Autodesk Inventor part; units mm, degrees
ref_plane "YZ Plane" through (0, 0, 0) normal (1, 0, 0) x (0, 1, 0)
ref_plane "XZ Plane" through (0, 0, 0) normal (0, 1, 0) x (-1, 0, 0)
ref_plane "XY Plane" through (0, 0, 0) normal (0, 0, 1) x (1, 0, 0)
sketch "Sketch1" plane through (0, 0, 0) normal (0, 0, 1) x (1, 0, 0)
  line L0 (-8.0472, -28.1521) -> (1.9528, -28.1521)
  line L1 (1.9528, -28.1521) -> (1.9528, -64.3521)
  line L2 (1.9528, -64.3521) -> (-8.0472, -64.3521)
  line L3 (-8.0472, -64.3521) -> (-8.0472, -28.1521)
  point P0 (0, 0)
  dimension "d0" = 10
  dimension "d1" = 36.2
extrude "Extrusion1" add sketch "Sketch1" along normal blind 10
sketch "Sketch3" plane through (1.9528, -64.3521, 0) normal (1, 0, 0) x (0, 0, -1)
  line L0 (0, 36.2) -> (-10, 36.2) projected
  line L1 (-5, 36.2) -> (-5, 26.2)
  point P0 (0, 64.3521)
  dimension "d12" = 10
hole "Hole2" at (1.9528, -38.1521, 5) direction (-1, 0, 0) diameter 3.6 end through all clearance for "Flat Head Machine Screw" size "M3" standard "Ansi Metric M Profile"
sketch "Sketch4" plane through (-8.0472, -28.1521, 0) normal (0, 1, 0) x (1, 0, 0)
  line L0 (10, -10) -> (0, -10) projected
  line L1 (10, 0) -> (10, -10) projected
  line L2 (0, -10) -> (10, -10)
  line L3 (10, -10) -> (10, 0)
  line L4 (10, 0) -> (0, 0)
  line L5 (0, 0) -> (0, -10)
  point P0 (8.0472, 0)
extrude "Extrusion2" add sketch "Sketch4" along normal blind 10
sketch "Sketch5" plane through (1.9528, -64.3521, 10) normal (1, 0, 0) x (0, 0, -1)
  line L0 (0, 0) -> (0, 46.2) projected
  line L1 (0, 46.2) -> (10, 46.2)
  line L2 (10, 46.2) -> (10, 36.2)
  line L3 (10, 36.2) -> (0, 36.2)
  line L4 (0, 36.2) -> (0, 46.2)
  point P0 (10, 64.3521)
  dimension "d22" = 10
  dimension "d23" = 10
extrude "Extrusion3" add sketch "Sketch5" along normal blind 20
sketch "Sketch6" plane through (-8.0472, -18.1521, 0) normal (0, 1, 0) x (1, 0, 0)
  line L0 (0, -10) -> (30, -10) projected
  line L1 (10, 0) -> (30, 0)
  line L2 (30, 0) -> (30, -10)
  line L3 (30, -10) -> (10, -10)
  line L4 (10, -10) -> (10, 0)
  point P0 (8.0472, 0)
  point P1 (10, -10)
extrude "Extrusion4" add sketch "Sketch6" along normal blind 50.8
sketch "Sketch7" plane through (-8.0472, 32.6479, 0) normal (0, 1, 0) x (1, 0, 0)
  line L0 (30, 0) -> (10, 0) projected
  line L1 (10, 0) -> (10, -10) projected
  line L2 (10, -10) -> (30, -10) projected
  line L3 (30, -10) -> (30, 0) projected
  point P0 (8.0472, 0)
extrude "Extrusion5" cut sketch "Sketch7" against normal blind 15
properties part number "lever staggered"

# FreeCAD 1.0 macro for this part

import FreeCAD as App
import Part
import Sketcher
from FreeCAD import Vector
Q = App.Units.Quantity

doc = App.newDocument("Part")
body = doc.addObject("PartDesign::Body", "Body")

# Sketch on XY plane
sketch1 = body.newObject("Sketcher::SketchObject", "Sketch")
sketch1.AttachmentSupport = (doc.getObject("XY_Plane"), [""])
sketch1.MapMode = "FlatFace"
sketch1.addGeometry(Part.LineSegment(Vector(2, -28, 0), Vector(-8, -28, 0)), False)
sketch1.addGeometry(Part.LineSegment(Vector(-8, -28, 0), Vector(-8, -64, 0)), False)
sketch1.addGeometry(Part.LineSegment(Vector(-8, -64, 0), Vector(2, -64, 0)), False)
sketch1.addGeometry(Part.LineSegment(Vector(2, -64, 0), Vector(2, -28, 0)), False)
sketch1.addConstraint(Sketcher.Constraint("Coincident", 0, 2, 1, 1))
sketch1.addConstraint(Sketcher.Constraint("Coincident", 1, 2, 2, 1))
sketch1.addConstraint(Sketcher.Constraint("Coincident", 2, 2, 3, 1))
sketch1.addConstraint(Sketcher.Constraint("Coincident", 3, 2, 0, 1))
sketch1.addConstraint(Sketcher.Constraint("Horizontal", 0))
sketch1.addConstraint(Sketcher.Constraint("Vertical", 1))
sketch1.addConstraint(Sketcher.Constraint("Horizontal", 2))
sketch1.addConstraint(Sketcher.Constraint("Vertical", 3))
sketch1.addConstraint(Sketcher.Constraint("DistanceX", 0, 2, 0, 1, Q("10 mm")))
sketch1.addConstraint(Sketcher.Constraint("DistanceY", 1, 2, 1, 1, Q("36.2 mm")))
sketch1.addConstraint(Sketcher.Constraint("DistanceY", 0, 2, -1, 1, Q("28.152 mm")))
sketch1.addConstraint(Sketcher.Constraint("DistanceX", 0, 2, -1, 1, Q("8.0472 mm")))
pad1 = body.newObject("PartDesign::Pad", "Pad")
pad1.Profile = sketch1
pad1.Length = 10

# Sketch on YZ plane
sketch2 = body.newObject("Sketcher::SketchObject", "Sketch001")
sketch2.AttachmentSupport = (doc.getObject("YZ_Plane"), [""])
sketch2.MapMode = "FlatFace"
sketch2.AttachmentOffset = App.Placement(Vector(0, 0, 1.9528), App.Rotation())
sketch2.addGeometry(Part.Circle(Vector(-38.2, 5, 0), Vector(0, 0, 1), 1.8), False)
sketch2.addConstraint(Sketcher.Constraint("Diameter", 0, Q("3.6 mm")))
sketch2.addConstraint(Sketcher.Constraint("DistanceY", -1, 1, 0, 3, Q("5 mm")))
sketch2.addConstraint(Sketcher.Constraint("DistanceX", 0, 3, -1, 1, Q("38.152 mm")))
doc.recompute()
hole = body.newObject("PartDesign::Hole", "Hole")
hole.Profile = sketch2
hole.ThreadType = "None"
hole.Diameter = 3.6
hole.DepthType = "ThroughAll"

# Sketch on XZ plane
sketch3 = body.newObject("Sketcher::SketchObject", "Sketch002")
sketch3.AttachmentSupport = (doc.getObject("XZ_Plane"), [""])
sketch3.MapMode = "FlatFace"
sketch3.AttachmentOffset = App.Placement(Vector(0, 0, 28.1521), App.Rotation())
sketch3.addGeometry(Part.LineSegment(Vector(-8, 10, 0), Vector(2, 10, 0)), False)
sketch3.addGeometry(Part.LineSegment(Vector(2, 10, 0), Vector(2, 0, 0)), False)
sketch3.addGeometry(Part.LineSegment(Vector(2, 0, 0), Vector(-8, 0, 0)), False)
sketch3.addGeometry(Part.LineSegment(Vector(-8, 0, 0), Vector(-8, 10, 0)), False)
sketch3.addConstraint(Sketcher.Constraint("Coincident", 0, 2, 1, 1))
sketch3.addConstraint(Sketcher.Constraint("Coincident", 1, 2, 2, 1))
sketch3.addConstraint(Sketcher.Constraint("Coincident", 2, 2, 3, 1))
sketch3.addConstraint(Sketcher.Constraint("Coincident", 3, 2, 0, 1))
sketch3.addConstraint(Sketcher.Constraint("Horizontal", 0))
sketch3.addConstraint(Sketcher.Constraint("Vertical", 1))
sketch3.addConstraint(Sketcher.Constraint("Horizontal", 2))
sketch3.addConstraint(Sketcher.Constraint("Vertical", 3))
sketch3.addConstraint(Sketcher.Constraint("PointOnObject", 1, 2, -1))
sketch3.addConstraint(Sketcher.Constraint("Equal", 2, 1))
sketch3.addConstraint(Sketcher.Constraint("DistanceX", 0, 1, 0, 2, Q("10 mm")))
sketch3.addConstraint(Sketcher.Constraint("DistanceX", -1, 1, 0, 2, Q("1.9528 mm")))
pad2 = body.newObject("PartDesign::Pad", "Pad001")
pad2.Profile = sketch3
pad2.Length = 10
pad2.Reversed = True

# Sketch on YZ plane
sketch4 = body.newObject("Sketcher::SketchObject", "Sketch003")
sketch4.AttachmentSupport = (doc.getObject("YZ_Plane"), [""])
sketch4.MapMode = "FlatFace"
sketch4.AttachmentOffset = App.Placement(Vector(0, 0, 1.9528), App.Rotation())
sketch4.addGeometry(Part.LineSegment(Vector(-18, 10, 0), Vector(-28, 10, 0)), False)
sketch4.addGeometry(Part.LineSegment(Vector(-28, 10, 0), Vector(-28, 0, 0)), False)
sketch4.addGeometry(Part.LineSegment(Vector(-28, 0, 0), Vector(-18, 0, 0)), False)
sketch4.addGeometry(Part.LineSegment(Vector(-18, 0, 0), Vector(-18, 10, 0)), False)
sketch4.addConstraint(Sketcher.Constraint("Coincident", 0, 2, 1, 1))
sketch4.addConstraint(Sketcher.Constraint("Coincident", 1, 2, 2, 1))
sketch4.addConstraint(Sketcher.Constraint("Coincident", 2, 2, 3, 1))
sketch4.addConstraint(Sketcher.Constraint("Coincident", 3, 2, 0, 1))
sketch4.addConstraint(Sketcher.Constraint("Horizontal", 0))
sketch4.addConstraint(Sketcher.Constraint("Vertical", 1))
sketch4.addConstraint(Sketcher.Constraint("Horizontal", 2))
sketch4.addConstraint(Sketcher.Constraint("Vertical", 3))
sketch4.addConstraint(Sketcher.Constraint("PointOnObject", 1, 2, -1))
sketch4.addConstraint(Sketcher.Constraint("Equal", 2, 1))
sketch4.addConstraint(Sketcher.Constraint("DistanceX", 0, 2, 0, 1, Q("10 mm")))
sketch4.addConstraint(Sketcher.Constraint("DistanceX", 0, 2, -1, 1, Q("28.152 mm")))
pad3 = body.newObject("PartDesign::Pad", "Pad002")
pad3.Profile = sketch4
pad3.Length = 20

# Sketch on XZ plane
sketch5 = body.newObject("Sketcher::SketchObject", "Sketch004")
sketch5.AttachmentSupport = (doc.getObject("XZ_Plane"), [""])
sketch5.MapMode = "FlatFace"
sketch5.AttachmentOffset = App.Placement(Vector(0, 0, 18.1521), App.Rotation())
sketch5.addGeometry(Part.LineSegment(Vector(2, 0, 0), Vector(2, 10, 0)), False)
sketch5.addGeometry(Part.LineSegment(Vector(2, 10, 0), Vector(22, 10, 0)), False)
sketch5.addGeometry(Part.LineSegment(Vector(22, 10, 0), Vector(22, 0, 0)), False)
sketch5.addGeometry(Part.LineSegment(Vector(22, 0, 0), Vector(2, 0, 0)), False)
sketch5.addConstraint(Sketcher.Constraint("Coincident", 0, 2, 1, 1))
sketch5.addConstraint(Sketcher.Constraint("Coincident", 1, 2, 2, 1))
sketch5.addConstraint(Sketcher.Constraint("Coincident", 2, 2, 3, 1))
sketch5.addConstraint(Sketcher.Constraint("Coincident", 3, 2, 0, 1))
sketch5.addConstraint(Sketcher.Constraint("Vertical", 0))
sketch5.addConstraint(Sketcher.Constraint("Horizontal", 1))
sketch5.addConstraint(Sketcher.Constraint("Vertical", 2))
sketch5.addConstraint(Sketcher.Constraint("Horizontal", 3))
sketch5.addConstraint(Sketcher.Constraint("PointOnObject", 2, 2, -1))
sketch5.addConstraint(Sketcher.Constraint("DistanceX", 1, 1, 1, 2, Q("20 mm")))
sketch5.addConstraint(Sketcher.Constraint("DistanceY", 0, 1, 0, 2, Q("10 mm")))
sketch5.addConstraint(Sketcher.Constraint("DistanceX", -1, 1, 0, 2, Q("1.9528 mm")))
pad4 = body.newObject("PartDesign::Pad", "Pad003")
pad4.Profile = sketch5
pad4.Length = 50.8
pad4.Reversed = True

# Sketch on XZ plane
sketch6 = body.newObject("Sketcher::SketchObject", "Sketch005")
sketch6.AttachmentSupport = (doc.getObject("XZ_Plane"), [""])
sketch6.MapMode = "FlatFace"
sketch6.AttachmentOffset = App.Placement(Vector(0, 0, -32.6479), App.Rotation())
sketch6.addGeometry(Part.LineSegment(Vector(22, 10, 0), Vector(22, 0, 0)), False)
sketch6.addGeometry(Part.LineSegment(Vector(22, 0, 0), Vector(2, 0, 0)), False)
sketch6.addGeometry(Part.LineSegment(Vector(2, 0, 0), Vector(2, 10, 0)), False)
sketch6.addGeometry(Part.LineSegment(Vector(2, 10, 0), Vector(22, 10, 0)), False)
sketch6.addConstraint(Sketcher.Constraint("Coincident", 0, 2, 1, 1))
sketch6.addConstraint(Sketcher.Constraint("Coincident", 1, 2, 2, 1))
sketch6.addConstraint(Sketcher.Constraint("Coincident", 2, 2, 3, 1))
sketch6.addConstraint(Sketcher.Constraint("Coincident", 3, 2, 0, 1))
sketch6.addConstraint(Sketcher.Constraint("Vertical", 0))
sketch6.addConstraint(Sketcher.Constraint("Horizontal", 1))
sketch6.addConstraint(Sketcher.Constraint("Vertical", 2))
sketch6.addConstraint(Sketcher.Constraint("Horizontal", 3))
sketch6.addConstraint(Sketcher.Constraint("PointOnObject", 0, 2, -1))
sketch6.addConstraint(Sketcher.Constraint("DistanceX", 1, 2, 1, 1, Q("20 mm")))
sketch6.addConstraint(Sketcher.Constraint("DistanceY", 0, 2, 0, 1, Q("10 mm")))
sketch6.addConstraint(Sketcher.Constraint("DistanceX", -1, 1, 0, 2, Q("21.9528 mm")))
pocket1 = body.newObject("PartDesign::Pocket", "Pocket")
pocket1.Profile = sketch6
pocket1.Length = 15
pocket1.Reversed = True

doc.recompute()
